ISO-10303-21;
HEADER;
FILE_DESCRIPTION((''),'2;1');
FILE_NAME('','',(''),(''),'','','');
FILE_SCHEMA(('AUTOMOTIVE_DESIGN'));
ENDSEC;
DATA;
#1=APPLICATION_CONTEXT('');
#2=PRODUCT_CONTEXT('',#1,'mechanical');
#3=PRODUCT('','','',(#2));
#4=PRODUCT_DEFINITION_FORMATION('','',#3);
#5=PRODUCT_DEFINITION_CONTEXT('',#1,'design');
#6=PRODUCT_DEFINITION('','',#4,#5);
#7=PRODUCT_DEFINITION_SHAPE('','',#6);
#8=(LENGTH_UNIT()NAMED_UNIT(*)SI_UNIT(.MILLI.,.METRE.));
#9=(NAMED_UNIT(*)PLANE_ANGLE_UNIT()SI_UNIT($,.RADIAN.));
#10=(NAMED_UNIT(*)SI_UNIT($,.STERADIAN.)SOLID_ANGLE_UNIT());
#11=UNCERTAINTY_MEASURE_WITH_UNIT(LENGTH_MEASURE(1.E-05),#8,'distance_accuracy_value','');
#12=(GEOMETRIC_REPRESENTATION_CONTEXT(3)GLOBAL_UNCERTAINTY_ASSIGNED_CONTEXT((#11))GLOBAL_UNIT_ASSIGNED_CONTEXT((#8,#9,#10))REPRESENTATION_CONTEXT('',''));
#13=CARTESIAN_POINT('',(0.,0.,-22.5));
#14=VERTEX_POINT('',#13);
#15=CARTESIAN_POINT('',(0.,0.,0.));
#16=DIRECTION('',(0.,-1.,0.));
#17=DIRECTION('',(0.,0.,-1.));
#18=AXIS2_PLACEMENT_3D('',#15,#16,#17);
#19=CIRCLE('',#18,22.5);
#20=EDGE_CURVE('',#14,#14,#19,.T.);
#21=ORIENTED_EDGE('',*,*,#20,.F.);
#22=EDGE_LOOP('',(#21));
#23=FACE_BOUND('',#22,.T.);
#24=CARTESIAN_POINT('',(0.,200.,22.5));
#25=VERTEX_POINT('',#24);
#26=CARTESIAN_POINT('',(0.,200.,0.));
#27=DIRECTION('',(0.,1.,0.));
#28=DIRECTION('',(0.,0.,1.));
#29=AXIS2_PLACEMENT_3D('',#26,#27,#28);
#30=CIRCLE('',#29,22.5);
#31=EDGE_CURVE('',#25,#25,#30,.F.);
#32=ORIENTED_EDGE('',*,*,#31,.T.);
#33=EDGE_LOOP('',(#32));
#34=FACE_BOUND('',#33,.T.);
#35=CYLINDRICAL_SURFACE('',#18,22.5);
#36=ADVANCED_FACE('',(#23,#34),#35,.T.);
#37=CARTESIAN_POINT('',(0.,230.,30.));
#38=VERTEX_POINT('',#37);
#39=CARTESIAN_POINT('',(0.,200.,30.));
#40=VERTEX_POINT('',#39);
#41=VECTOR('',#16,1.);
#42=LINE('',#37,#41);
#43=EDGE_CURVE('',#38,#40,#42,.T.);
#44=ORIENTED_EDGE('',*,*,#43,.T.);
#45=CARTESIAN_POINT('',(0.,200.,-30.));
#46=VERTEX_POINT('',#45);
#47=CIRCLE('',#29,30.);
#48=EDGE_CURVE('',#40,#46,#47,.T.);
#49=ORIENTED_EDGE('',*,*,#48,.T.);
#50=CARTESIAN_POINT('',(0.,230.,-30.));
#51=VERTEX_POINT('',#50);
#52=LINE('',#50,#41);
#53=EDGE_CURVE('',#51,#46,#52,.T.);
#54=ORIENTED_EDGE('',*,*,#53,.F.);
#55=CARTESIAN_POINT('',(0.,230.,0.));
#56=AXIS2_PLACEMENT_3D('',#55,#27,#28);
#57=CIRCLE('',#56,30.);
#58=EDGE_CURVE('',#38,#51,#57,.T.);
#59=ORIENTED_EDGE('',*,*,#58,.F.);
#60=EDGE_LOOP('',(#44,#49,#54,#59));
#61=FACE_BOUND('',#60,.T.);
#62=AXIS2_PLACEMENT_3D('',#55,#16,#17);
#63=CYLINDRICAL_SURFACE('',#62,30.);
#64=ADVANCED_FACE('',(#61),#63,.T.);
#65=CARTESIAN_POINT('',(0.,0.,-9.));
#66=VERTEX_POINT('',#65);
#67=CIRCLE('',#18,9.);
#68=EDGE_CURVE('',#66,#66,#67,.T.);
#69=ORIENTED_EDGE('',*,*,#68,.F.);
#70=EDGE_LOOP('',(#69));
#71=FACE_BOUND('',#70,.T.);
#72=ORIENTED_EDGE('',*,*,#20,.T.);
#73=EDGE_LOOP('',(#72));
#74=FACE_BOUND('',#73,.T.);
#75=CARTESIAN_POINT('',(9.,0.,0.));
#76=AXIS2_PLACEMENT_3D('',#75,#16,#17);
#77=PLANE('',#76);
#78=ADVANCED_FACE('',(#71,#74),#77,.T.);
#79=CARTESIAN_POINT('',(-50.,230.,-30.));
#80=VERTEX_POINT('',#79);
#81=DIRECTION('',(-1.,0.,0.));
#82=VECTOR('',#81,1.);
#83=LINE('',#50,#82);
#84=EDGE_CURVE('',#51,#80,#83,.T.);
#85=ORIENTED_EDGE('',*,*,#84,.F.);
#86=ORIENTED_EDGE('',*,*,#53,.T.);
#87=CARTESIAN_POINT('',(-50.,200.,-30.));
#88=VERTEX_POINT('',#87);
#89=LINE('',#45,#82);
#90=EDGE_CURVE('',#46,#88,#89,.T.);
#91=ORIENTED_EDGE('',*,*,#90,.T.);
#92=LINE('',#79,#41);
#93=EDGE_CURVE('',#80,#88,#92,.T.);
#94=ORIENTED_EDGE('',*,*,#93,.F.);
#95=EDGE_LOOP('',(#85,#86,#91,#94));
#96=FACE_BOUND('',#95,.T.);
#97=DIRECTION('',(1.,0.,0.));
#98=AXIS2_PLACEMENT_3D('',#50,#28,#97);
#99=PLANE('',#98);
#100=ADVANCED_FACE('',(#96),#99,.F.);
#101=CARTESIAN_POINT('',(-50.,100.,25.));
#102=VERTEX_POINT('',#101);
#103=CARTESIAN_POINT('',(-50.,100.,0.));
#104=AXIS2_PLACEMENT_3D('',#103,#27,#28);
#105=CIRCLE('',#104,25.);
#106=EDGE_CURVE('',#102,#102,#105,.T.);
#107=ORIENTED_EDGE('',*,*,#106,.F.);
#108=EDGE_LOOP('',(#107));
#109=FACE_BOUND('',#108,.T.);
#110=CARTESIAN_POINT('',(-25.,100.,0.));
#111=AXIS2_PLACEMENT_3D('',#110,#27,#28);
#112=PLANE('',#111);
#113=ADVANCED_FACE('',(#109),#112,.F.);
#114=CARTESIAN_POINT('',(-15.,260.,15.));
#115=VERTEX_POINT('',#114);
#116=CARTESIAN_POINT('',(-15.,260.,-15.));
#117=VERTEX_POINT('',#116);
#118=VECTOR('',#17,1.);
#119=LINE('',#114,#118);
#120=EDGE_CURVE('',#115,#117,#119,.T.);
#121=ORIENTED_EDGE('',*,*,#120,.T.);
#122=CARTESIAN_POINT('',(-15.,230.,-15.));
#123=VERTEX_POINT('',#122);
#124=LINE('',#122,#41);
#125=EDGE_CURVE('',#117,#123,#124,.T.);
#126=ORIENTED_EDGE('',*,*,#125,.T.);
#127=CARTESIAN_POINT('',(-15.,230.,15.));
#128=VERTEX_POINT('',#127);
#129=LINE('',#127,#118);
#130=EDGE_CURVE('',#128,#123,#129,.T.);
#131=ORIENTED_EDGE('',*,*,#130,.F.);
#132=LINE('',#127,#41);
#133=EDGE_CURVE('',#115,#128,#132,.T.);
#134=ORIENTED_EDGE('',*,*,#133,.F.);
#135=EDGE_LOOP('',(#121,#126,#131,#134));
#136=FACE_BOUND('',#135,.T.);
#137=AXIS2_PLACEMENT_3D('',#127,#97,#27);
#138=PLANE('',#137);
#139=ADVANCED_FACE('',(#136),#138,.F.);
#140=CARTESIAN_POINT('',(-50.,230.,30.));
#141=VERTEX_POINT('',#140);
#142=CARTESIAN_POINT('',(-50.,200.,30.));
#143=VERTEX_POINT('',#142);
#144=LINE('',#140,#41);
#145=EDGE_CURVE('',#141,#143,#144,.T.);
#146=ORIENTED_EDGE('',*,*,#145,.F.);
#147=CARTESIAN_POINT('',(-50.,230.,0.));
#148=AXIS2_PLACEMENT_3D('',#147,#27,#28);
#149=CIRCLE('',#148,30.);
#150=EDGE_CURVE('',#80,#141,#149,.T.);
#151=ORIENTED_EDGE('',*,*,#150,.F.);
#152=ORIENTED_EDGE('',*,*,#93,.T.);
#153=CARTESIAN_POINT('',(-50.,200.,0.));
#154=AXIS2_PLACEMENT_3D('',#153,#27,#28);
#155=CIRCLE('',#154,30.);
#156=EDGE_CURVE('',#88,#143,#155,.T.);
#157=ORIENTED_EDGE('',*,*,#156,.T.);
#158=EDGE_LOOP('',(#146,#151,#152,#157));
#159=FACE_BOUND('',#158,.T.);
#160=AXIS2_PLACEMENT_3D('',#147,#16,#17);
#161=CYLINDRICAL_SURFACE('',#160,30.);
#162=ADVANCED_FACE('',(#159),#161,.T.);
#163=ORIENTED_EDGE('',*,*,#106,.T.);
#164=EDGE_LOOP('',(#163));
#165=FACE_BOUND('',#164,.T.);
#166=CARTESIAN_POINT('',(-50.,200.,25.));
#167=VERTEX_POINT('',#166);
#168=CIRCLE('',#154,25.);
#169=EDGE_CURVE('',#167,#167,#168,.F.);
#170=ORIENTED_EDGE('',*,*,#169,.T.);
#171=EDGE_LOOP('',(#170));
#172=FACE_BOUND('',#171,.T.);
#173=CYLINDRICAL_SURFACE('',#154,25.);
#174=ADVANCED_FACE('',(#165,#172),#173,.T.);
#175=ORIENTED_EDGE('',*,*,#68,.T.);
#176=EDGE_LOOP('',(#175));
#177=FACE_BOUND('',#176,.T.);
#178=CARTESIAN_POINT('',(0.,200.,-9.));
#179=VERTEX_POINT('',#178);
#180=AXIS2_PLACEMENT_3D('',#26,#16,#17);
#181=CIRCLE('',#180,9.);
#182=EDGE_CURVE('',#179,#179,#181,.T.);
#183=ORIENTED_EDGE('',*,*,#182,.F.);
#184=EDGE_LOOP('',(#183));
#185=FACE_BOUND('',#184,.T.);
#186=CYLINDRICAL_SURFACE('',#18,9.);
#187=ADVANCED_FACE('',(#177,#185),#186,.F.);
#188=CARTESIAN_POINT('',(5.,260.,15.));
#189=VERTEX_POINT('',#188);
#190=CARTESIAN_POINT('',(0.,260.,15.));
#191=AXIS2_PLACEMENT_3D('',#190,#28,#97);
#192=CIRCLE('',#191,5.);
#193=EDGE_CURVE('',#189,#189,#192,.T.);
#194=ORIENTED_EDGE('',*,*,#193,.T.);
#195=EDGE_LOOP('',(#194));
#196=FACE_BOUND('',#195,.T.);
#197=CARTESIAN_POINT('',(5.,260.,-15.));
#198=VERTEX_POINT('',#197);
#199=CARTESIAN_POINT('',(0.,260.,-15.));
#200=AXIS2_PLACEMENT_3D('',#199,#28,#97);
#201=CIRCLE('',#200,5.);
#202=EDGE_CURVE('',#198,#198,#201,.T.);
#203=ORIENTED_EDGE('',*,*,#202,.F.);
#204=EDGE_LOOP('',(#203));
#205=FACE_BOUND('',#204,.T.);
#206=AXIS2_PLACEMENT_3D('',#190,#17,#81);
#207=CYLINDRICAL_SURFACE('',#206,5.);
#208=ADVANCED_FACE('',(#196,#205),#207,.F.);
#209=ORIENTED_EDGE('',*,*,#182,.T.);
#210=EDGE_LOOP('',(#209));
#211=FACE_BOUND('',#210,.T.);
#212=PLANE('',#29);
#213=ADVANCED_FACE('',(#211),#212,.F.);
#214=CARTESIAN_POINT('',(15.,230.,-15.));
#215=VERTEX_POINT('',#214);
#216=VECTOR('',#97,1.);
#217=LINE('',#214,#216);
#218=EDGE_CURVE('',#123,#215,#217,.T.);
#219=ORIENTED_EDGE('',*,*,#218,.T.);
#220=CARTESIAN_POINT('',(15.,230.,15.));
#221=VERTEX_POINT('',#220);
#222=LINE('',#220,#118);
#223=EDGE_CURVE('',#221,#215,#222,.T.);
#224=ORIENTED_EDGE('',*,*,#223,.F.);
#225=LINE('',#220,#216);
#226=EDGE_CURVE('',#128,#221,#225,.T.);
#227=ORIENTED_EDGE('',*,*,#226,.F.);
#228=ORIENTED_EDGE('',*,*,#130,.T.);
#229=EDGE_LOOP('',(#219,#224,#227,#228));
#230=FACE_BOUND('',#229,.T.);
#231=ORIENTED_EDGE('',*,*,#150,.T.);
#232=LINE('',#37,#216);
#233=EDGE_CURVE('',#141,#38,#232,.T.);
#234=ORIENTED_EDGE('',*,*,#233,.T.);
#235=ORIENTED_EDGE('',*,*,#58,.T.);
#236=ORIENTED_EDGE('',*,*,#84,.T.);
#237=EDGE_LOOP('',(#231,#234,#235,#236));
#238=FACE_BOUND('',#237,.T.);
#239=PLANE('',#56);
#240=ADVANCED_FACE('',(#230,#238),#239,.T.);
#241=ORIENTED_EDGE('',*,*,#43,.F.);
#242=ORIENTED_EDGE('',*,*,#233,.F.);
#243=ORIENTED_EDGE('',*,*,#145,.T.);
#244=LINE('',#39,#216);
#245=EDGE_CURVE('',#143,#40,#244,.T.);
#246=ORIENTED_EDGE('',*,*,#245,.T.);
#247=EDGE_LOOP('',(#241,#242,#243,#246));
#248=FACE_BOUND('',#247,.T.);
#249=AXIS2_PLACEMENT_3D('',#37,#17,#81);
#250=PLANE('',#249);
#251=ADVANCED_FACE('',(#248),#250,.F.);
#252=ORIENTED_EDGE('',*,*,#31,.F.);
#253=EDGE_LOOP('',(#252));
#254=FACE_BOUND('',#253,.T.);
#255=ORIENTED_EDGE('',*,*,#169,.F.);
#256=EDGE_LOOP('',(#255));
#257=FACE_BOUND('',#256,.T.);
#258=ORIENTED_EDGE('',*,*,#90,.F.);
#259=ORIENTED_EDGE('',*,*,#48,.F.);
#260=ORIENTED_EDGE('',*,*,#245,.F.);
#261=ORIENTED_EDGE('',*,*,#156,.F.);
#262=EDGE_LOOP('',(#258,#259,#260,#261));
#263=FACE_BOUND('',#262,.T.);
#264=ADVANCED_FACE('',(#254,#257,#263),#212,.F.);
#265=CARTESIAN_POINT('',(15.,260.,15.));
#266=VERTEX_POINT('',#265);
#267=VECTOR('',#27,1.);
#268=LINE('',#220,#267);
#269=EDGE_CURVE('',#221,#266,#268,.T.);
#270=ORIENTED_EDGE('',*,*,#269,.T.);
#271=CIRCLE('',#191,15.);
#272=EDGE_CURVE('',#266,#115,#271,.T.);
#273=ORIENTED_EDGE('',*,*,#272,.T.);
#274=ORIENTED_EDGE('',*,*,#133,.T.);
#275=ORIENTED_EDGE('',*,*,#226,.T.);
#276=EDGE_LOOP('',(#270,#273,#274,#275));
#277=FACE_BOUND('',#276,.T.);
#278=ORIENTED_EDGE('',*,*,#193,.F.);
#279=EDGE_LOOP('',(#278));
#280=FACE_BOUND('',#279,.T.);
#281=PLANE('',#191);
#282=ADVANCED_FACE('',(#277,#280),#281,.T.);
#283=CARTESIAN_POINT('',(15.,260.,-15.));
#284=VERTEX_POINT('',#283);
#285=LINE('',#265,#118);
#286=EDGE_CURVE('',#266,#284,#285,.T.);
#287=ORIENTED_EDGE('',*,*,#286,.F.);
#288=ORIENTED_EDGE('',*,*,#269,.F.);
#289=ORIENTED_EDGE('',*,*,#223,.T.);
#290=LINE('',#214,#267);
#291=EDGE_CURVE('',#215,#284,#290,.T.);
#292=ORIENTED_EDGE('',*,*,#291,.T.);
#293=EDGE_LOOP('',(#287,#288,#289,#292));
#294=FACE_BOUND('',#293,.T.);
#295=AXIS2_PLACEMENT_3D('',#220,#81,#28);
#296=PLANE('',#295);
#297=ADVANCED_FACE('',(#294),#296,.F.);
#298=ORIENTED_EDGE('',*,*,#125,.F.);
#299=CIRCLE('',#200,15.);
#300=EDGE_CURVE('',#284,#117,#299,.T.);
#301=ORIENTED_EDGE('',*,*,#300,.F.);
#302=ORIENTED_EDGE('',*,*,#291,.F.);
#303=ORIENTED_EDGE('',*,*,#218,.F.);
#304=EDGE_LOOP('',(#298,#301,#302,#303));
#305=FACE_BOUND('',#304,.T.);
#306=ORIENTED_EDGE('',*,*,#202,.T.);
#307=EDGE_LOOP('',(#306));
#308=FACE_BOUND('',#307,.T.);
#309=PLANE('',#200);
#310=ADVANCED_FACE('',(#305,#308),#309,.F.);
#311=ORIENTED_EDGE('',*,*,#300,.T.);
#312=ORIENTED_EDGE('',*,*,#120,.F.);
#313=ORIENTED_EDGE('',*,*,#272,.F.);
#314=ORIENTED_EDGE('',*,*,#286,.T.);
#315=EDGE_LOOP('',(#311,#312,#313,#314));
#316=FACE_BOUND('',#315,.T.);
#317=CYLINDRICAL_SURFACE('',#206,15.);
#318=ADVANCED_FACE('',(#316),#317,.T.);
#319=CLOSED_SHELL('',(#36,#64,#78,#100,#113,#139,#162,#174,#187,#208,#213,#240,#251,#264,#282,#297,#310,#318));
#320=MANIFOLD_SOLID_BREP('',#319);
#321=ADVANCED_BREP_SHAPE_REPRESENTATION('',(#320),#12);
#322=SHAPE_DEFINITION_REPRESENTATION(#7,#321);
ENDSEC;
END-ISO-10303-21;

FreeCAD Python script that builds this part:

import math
import FreeCAD as App
import Part
import Sketcher

V = App.Vector

doc = App.newDocument("Part")
body = doc.addObject("PartDesign::Body", "Body")

# Sketch on XY plane
sketch1 = body.newObject("Sketcher::SketchObject", "Sketch")
sketch1.AttachmentSupport = (doc.getObject("XY_Plane"), [""])
sketch1.MapMode = "FlatFace"
sketch1.addGeometry([
    Part.LineSegment(V(9, 200, 0), V(9, 0, 0)),
    Part.LineSegment(V(9, 0, 0), V(22.5, 0, 0)),
    Part.LineSegment(V(22.5, 0, 0), V(22.5, 200, 0)),
    Part.LineSegment(V(22.5, 200, 0), V(9, 200, 0)),
], False)
sketch1.addConstraint([
    Sketcher.Constraint("Coincident", 0, 2, 1, 1),
    Sketcher.Constraint("Coincident", 1, 2, 2, 1),
    Sketcher.Constraint("Coincident", 2, 2, 3, 1),
    Sketcher.Constraint("Coincident", 3, 2, 0, 1),
    Sketcher.Constraint("Vertical", 0),
    Sketcher.Constraint("Horizontal", 1),
    Sketcher.Constraint("Vertical", 2),
    Sketcher.Constraint("Horizontal", 3),
    Sketcher.Constraint("PointOnObject", 0, 2, -1),
    Sketcher.Constraint("DistanceY", 0, 2, 0, 1, 200.0),
    Sketcher.Constraint("DistanceX", 1, 1, 1, 2, 13.5),
    Sketcher.Constraint("DistanceX", -1, 1, 0, 2, 9.0),
])
revolution = body.newObject("PartDesign::Revolution", "Revolution")
revolution.Profile = sketch1
revolution.ReferenceAxis = (sketch1, ["V_Axis"])
revolution.Angle = 360

# Sketch on XZ plane
sketch2 = body.newObject("Sketcher::SketchObject", "Sketch001")
sketch2.AttachmentSupport = (doc.getObject("XZ_Plane"), [""])
sketch2.MapMode = "FlatFace"
sketch2.AttachmentOffset = App.Placement(V(0, 0, -200), App.Rotation())
sketch2.addGeometry([
    Part.LineSegment(V(-50, 30, 0), V(0, 30, 0)),
    Part.ArcOfCircle(Part.Circle(V(0, 0, 0), V(0, 0, 1), 30), math.radians(-90), math.radians(90)),
    Part.LineSegment(V(0, -30, 0), V(-50, -30, 0)),
    Part.ArcOfCircle(Part.Circle(V(-50, 0, 0), V(0, 0, 1), 30), math.radians(90), math.radians(270)),
], False)
sketch2.addConstraint([
    Sketcher.Constraint("Tangent", 0, 2, 1, 2),
    Sketcher.Constraint("Tangent", 1, 1, 2, 1),
    Sketcher.Constraint("Tangent", 2, 2, 3, 2),
    Sketcher.Constraint("Tangent", 3, 1, 0, 1),
    Sketcher.Constraint("Horizontal", 0),
    Sketcher.Constraint("Horizontal", 2),
    Sketcher.Constraint("Coincident", 1, 3, -1, 1),
    Sketcher.Constraint("Radius", 1, 30.0),
    Sketcher.Constraint("DistanceX", 0, 1, 0, 2, 50.0),
])
pad1 = body.newObject("PartDesign::Pad", "Pad")
pad1.Profile = sketch2
pad1.Length = 30
pad1.Reversed = True

# Sketch on XY plane
sketch3 = body.newObject("Sketcher::SketchObject", "Sketch002")
sketch3.AttachmentSupport = (doc.getObject("XY_Plane"), [""])
sketch3.MapMode = "FlatFace"
sketch3.addGeometry([
    Part.LineSegment(V(-50, 200, 0), V(-50, 100, 0)),
    Part.LineSegment(V(-50, 100, 0), V(-25, 100, 0)),
    Part.LineSegment(V(-25, 100, 0), V(-25, 200, 0)),
    Part.LineSegment(V(-25, 200, 0), V(-50, 200, 0)),
], False)
sketch3.addGeometry(Part.LineSegment(V(-50, 200, 0), V(-50, 100, 0)), True)  # axis
sketch3.addConstraint([
    Sketcher.Constraint("Coincident", 0, 2, 1, 1),
    Sketcher.Constraint("Coincident", 1, 2, 2, 1),
    Sketcher.Constraint("Coincident", 2, 2, 3, 1),
    Sketcher.Constraint("Coincident", 3, 2, 0, 1),
    Sketcher.Constraint("Vertical", 0),
    Sketcher.Constraint("Horizontal", 1),
    Sketcher.Constraint("Vertical", 2),
    Sketcher.Constraint("Horizontal", 3),
    Sketcher.Constraint("Vertical", 4),
    Sketcher.Constraint("Coincident", 4, 1, 3, 2),
    Sketcher.Constraint("Horizontal", 1, 2, 4, 2),
    Sketcher.Constraint("DistanceX", 1, 1, 1, 2, 25.0),
    Sketcher.Constraint("DistanceY", 0, 2, 0, 1, 100.0),
    Sketcher.Constraint("DistanceX", 0, 2, -1, 1, 50.0),
    Sketcher.Constraint("DistanceY", -1, 1, 0, 2, 100.0),
])
revolution2 = body.newObject("PartDesign::Revolution", "Revolution001")
revolution2.Profile = sketch3
revolution2.ReferenceAxis = (sketch3, ["Axis0"])
revolution2.Angle = 360

# Sketch on XY plane
sketch4 = body.newObject("Sketcher::SketchObject", "Sketch003")
sketch4.AttachmentSupport = (doc.getObject("XY_Plane"), [""])
sketch4.MapMode = "FlatFace"
sketch4.addGeometry([
    Part.LineSegment(V(15, 230, 0), V(15, 260, 0)),  # 0
    Part.ArcOfCircle(Part.Circle(V(0, 260, 0), V(0, 0, 1), 15), math.radians(0), math.radians(180)),  # 1
    Part.LineSegment(V(-15, 260, 0), V(-15, 230, 0)),  # 2
    Part.LineSegment(V(-15, 230, 0), V(15, 230, 0)),  # 3
    Part.Circle(V(0, 260, 0), V(0, 0, 1), 5),  # 4
], False)
sketch4.addConstraint([
    Sketcher.Constraint("Tangent", 0, 2, 1, 1),
    Sketcher.Constraint("Tangent", 1, 2, 2, 1),
    Sketcher.Constraint("Coincident", 2, 2, 3, 1),
    Sketcher.Constraint("Coincident", 3, 2, 0, 1),
    Sketcher.Constraint("Vertical", 0),
    Sketcher.Constraint("Vertical", 2),
    Sketcher.Constraint("Horizontal", 3),
    Sketcher.Constraint("Coincident", 4, 3, 1, 3),
    Sketcher.Constraint("PointOnObject", 1, 3, -2),
    Sketcher.Constraint("Equal", 3, 0),
    Sketcher.Constraint("Diameter", 4, 10.0),
    Sketcher.Constraint("Radius", 1, 15.0),
    Sketcher.Constraint("DistanceY", -1, 1, 1, 3, 260.0),
])
pad2 = body.newObject("PartDesign::Pad", "Pad001")
pad2.Profile = sketch4
pad2.Length = 30
pad2.Midplane = True

doc.recompute()
